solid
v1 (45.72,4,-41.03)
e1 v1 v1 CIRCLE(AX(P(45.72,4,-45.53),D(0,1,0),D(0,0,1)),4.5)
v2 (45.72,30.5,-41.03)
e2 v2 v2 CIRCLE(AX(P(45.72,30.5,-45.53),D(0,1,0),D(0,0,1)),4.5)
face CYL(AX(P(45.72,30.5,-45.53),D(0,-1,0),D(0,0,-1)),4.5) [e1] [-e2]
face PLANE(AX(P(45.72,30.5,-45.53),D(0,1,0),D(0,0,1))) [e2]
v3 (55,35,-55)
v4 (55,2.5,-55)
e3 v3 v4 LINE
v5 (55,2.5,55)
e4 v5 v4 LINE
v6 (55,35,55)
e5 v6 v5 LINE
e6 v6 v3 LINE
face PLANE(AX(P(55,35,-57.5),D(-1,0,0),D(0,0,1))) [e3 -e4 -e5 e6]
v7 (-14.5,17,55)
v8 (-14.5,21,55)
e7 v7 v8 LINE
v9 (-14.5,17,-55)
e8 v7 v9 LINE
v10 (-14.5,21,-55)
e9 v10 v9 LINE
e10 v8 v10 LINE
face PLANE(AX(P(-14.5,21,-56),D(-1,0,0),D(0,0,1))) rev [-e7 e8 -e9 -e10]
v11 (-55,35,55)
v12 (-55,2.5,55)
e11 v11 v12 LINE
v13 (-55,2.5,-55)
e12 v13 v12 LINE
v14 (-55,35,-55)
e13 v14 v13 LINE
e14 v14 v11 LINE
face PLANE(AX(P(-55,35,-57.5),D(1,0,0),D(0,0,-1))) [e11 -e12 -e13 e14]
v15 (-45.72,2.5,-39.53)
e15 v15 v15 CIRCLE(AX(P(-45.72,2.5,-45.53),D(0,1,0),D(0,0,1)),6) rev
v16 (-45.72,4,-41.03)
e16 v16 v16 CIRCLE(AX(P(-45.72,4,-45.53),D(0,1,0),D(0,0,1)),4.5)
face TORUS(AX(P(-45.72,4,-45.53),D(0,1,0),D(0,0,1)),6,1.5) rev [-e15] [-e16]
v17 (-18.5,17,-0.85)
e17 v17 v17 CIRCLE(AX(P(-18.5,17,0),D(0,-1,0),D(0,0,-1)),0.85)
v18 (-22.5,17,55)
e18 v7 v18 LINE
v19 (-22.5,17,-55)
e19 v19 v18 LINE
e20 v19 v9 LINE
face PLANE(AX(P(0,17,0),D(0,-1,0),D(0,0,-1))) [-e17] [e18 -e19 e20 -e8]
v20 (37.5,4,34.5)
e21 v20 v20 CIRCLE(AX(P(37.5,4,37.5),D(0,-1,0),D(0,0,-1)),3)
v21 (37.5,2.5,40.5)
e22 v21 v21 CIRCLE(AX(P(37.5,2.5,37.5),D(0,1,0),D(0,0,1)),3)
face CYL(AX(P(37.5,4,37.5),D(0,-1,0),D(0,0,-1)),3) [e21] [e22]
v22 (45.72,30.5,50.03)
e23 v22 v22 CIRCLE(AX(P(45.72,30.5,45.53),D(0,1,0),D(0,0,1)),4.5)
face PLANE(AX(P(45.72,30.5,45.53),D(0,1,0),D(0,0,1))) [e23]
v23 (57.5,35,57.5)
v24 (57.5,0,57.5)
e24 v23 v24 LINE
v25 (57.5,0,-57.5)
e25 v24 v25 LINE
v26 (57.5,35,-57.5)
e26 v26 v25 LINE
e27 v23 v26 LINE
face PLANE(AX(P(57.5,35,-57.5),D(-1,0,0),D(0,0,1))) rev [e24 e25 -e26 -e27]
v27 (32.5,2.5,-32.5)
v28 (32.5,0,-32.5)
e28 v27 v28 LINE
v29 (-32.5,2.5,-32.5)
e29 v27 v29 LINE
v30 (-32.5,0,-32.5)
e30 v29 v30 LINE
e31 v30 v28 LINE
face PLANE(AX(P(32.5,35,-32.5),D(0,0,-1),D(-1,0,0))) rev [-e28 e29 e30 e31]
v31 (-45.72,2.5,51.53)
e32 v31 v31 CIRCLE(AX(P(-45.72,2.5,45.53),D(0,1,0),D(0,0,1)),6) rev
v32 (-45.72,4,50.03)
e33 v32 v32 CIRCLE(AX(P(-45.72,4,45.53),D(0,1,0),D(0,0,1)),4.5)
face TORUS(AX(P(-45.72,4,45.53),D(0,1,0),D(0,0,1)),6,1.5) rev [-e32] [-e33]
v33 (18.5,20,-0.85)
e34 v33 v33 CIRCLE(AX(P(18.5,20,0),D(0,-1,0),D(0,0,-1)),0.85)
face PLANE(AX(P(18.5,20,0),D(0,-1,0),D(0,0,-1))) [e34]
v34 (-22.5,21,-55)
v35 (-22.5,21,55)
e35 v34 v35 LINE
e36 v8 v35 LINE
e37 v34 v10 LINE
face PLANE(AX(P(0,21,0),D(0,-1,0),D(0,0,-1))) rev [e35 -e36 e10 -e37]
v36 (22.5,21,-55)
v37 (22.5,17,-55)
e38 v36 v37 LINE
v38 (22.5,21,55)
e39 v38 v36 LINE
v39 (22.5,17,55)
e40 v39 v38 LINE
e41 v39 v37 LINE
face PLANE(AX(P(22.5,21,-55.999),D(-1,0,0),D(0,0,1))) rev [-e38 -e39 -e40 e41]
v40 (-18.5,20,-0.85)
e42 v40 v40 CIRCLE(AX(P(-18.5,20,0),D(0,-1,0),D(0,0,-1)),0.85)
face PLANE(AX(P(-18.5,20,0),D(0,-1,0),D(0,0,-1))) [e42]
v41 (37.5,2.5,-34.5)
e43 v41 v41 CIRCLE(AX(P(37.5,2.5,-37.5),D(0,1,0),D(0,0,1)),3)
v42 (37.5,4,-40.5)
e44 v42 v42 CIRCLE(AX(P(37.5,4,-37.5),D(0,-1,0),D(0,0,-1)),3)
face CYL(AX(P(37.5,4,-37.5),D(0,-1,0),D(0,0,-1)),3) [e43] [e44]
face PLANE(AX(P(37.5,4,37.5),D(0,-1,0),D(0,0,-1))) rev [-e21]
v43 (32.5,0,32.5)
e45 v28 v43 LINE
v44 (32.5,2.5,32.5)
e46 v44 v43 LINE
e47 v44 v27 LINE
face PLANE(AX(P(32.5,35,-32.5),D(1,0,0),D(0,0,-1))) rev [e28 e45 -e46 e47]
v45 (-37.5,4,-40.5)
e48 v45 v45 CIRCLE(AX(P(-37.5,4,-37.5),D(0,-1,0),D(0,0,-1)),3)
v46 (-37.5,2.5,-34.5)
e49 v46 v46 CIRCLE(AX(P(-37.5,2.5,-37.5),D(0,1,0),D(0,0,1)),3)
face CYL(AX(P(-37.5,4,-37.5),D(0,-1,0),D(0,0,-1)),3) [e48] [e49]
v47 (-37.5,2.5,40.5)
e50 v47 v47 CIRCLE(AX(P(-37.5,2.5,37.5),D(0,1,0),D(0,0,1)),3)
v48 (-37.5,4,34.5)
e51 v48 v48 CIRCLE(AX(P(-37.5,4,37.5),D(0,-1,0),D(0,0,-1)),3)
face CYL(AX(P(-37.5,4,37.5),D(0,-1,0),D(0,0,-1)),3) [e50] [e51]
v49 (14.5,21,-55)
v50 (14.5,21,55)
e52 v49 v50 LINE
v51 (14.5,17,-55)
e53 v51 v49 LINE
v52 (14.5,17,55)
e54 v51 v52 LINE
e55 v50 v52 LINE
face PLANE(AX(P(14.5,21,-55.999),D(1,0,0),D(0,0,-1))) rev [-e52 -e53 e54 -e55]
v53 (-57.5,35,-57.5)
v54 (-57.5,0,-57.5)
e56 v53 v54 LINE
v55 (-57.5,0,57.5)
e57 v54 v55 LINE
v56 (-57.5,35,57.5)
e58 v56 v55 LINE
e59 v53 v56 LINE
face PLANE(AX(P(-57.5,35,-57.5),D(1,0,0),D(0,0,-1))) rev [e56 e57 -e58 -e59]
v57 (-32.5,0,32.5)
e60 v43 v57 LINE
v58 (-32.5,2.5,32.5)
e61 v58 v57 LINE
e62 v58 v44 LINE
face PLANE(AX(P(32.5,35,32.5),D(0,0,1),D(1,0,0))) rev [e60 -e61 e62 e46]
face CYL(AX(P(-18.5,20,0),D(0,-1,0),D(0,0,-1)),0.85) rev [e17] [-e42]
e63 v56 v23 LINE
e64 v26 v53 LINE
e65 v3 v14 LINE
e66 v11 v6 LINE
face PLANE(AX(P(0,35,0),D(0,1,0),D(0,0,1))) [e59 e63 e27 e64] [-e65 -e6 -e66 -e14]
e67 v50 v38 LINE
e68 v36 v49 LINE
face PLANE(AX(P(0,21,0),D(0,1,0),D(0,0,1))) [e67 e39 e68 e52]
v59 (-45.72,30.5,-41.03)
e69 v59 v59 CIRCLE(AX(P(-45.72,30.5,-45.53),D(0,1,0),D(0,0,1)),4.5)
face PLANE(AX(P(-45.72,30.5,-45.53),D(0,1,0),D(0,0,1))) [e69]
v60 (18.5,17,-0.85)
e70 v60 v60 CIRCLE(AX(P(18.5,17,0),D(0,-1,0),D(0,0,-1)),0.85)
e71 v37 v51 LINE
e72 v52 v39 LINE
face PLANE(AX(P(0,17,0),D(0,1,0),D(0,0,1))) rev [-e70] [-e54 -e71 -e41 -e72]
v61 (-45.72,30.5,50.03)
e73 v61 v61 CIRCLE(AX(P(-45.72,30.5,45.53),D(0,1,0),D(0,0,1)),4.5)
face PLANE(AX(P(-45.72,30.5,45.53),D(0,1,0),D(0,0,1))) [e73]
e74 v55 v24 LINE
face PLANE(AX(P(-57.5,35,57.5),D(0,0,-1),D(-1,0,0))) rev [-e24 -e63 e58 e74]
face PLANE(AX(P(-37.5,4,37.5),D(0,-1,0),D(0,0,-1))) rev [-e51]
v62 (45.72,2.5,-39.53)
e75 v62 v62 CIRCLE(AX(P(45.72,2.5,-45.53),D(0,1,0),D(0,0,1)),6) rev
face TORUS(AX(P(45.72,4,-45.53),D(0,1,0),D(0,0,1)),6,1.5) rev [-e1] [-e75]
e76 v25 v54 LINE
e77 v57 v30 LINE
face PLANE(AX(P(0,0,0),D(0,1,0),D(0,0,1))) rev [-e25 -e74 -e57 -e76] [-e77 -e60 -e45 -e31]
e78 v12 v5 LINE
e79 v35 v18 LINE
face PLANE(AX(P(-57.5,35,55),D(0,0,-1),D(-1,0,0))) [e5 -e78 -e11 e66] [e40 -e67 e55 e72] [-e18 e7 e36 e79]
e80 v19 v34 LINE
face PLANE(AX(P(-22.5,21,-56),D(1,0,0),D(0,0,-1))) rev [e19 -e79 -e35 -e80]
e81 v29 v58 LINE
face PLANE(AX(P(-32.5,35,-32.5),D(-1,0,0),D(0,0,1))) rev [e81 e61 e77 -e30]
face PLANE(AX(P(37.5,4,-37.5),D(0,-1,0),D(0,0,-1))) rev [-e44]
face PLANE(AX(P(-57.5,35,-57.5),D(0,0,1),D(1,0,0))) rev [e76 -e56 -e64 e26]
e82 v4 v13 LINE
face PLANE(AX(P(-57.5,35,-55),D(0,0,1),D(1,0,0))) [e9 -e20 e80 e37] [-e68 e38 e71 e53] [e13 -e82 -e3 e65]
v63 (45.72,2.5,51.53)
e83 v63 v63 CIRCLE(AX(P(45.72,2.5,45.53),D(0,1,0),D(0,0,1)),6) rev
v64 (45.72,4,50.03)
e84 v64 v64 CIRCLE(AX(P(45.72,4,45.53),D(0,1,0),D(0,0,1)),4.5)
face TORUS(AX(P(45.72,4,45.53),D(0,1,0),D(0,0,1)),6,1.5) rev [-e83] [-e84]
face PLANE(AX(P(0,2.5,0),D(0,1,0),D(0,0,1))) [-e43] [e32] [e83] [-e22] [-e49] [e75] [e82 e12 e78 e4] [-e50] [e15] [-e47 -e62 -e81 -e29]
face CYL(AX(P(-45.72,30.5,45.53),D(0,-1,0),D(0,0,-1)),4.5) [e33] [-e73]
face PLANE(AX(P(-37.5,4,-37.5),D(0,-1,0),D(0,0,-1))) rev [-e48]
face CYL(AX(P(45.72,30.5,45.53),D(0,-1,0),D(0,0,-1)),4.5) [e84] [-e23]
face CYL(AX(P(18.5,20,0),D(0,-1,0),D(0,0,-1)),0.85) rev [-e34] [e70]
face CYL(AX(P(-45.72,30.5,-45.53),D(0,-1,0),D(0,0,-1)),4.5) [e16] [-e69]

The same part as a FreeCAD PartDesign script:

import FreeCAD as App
import Part
import Sketcher
from FreeCAD import Vector


def edges_at(feature, points):
    """Names of the edges that pass closest to the given points."""
    edges = feature.Shape.Edges
    near = lambda p: min(range(len(edges)), key=lambda i: edges[i].distToShape(Part.Vertex(*p))[0])
    return sorted({f"Edge{near(p) + 1}" for p in points})


def faces_at(feature, points):
    """Names of the faces that lie closest to the given points."""
    faces = feature.Shape.Faces
    near = lambda p: min(range(len(faces)), key=lambda i: faces[i].distToShape(Part.Vertex(*p))[0])
    return sorted({f"Face{near(p) + 1}" for p in points})


def add_polygon(sketch, points):
    """Adds a closed chain of lines whose ends are joined by coincident constraints."""
    first, n = sketch.GeometryCount, len(points)
    for a, b in zip(points, points[1:] + points[:1]):
        sketch.addGeometry(Part.LineSegment(App.Vector(*a, 0), App.Vector(*b, 0)), False)
    for i in range(n):
        sketch.addConstraint(Sketcher.Constraint("Coincident", first + i, 2, first + (i + 1) % n, 1))

doc = App.newDocument("Part")
body = doc.addObject("PartDesign::Body", "Body")

# Sketch on XZ plane
sketch1 = body.newObject("Sketcher::SketchObject", "Sketch")
sketch1.AttachmentSupport = (doc.getObject("XZ_Plane"), [""])
sketch1.MapMode = "FlatFace"
add_polygon(sketch1, [(-57.5, -57.5), (-57.5, 57.5), (57.5, 57.5), (57.5, -57.5)])  # lines 0-3
sketch1.addConstraint([
    Sketcher.Constraint("Vertical", 0),
    Sketcher.Constraint("Horizontal", 1),
    Sketcher.Constraint("Vertical", 2),
    Sketcher.Constraint("Horizontal", 3),
    Sketcher.Constraint("Symmetric", 0, 2, 2, 2, -1, 1),
    Sketcher.Constraint("Equal", 3, 0),
    Sketcher.Constraint("DistanceX", 1, 1, 1, 2, 115.0),
])
pad1 = body.newObject("PartDesign::Pad", "Pad")
pad1.Profile = sketch1
pad1.Length = 35
pad1.Reversed = True
doc.recompute()

thickness = body.newObject("PartDesign::Thickness", "Thickness")
thickness.Base = (pad1, faces_at(pad1, [(0, 35, 0)]))
thickness.Value = 2.5
thickness.Reversed = True
thickness.Join = "Intersection"

# Sketch on XZ plane
sketch2 = body.newObject("Sketcher::SketchObject", "Sketch001")
sketch2.AttachmentSupport = (doc.getObject("XZ_Plane"), [""])
sketch2.MapMode = "FlatFace"
sketch2.AttachmentOffset = App.Placement(Vector(0, 0, -2.5), App.Rotation())
sketch2.addGeometry([
    Part.Circle(Vector(-45.72, 45.53, 0), Vector(0, 0, 1), 4.5),
    Part.Circle(Vector(-45.72, -45.53, 0), Vector(0, 0, 1), 4.5),
    Part.Circle(Vector(45.72, -45.53, 0), Vector(0, 0, 1), 4.5),
    Part.Circle(Vector(45.72, 45.53, 0), Vector(0, 0, 1), 4.5),
], False)
sketch2.addConstraint([
    Sketcher.Constraint("Equal", 0, 1),
    Sketcher.Constraint("Equal", 1, 2),
    Sketcher.Constraint("Equal", 2, 3),
    Sketcher.Constraint("Symmetric", 0, 3, 2, 3, -1, 1),
    Sketcher.Constraint("Symmetric", 1, 3, 3, 3, -1, 1),
    Sketcher.Constraint("Symmetric", 1, 3, 2, 3, -2),
    Sketcher.Constraint("Diameter", 0, 9.0),
    Sketcher.Constraint("DistanceX", 0, 3, -1, 1, 45.72),
    Sketcher.Constraint("DistanceY", -1, 1, 0, 3, 45.53),
])
pad2 = body.newObject("PartDesign::Pad", "Pad001")
pad2.Profile = sketch2
pad2.Length = 28
pad2.Reversed = True
doc.recompute()

fillet = body.newObject("PartDesign::Fillet", "Fillet")
fillet.Base = (pad2, edges_at(pad2, [(-45.72, 2.5, 41.03)]))
fillet.Radius = 1.5
doc.recompute()

fillet2 = body.newObject("PartDesign::Fillet", "Fillet001")
fillet2.Base = (fillet, edges_at(fillet, [(-45.72, 2.5, -50.03)]))
fillet2.Radius = 1.5
doc.recompute()

fillet3 = body.newObject("PartDesign::Fillet", "Fillet002")
fillet3.Base = (fillet2, edges_at(fillet2, [(45.72, 2.5, -50.03)]))
fillet3.Radius = 1.5
doc.recompute()

fillet4 = body.newObject("PartDesign::Fillet", "Fillet003")
fillet4.Base = (fillet3, edges_at(fillet3, [(45.72, 2.5, 41.03)]))
fillet4.Radius = 1.5

# Sketch on XZ plane
sketch3 = body.newObject("Sketcher::SketchObject", "Sketch002")
sketch3.AttachmentSupport = (doc.getObject("XZ_Plane"), [""])
sketch3.MapMode = "FlatFace"
add_polygon(sketch3, [(-32.5, 32.5), (-32.5, -32.5), (32.5, -32.5), (32.5, 32.5)])  # lines 0-3
sketch3.addConstraint([
    Sketcher.Constraint("Vertical", 0),
    Sketcher.Constraint("Horizontal", 1),
    Sketcher.Constraint("Vertical", 2),
    Sketcher.Constraint("Horizontal", 3),
    Sketcher.Constraint("Symmetric", 0, 2, 2, 2, -1, 1),
    Sketcher.Constraint("Equal", 3, 0),
    Sketcher.Constraint("DistanceX", 1, 1, 1, 2, 65.0),
])
pocket1 = body.newObject("PartDesign::Pocket", "Pocket")
pocket1.Profile = sketch3
pocket1.Type = "ThroughAll"

# Sketch on XZ plane
sketch4 = body.newObject("Sketcher::SketchObject", "Sketch003")
sketch4.AttachmentSupport = (doc.getObject("XZ_Plane"), [""])
sketch4.MapMode = "FlatFace"
sketch4.AttachmentOffset = App.Placement(Vector(0, 0, -17), App.Rotation())
add_polygon(sketch4, [(-22.5, -56), (-22.5, 56), (-14.5, 56), (-14.5, -56)])  # lines 0-3
add_polygon(sketch4, [(14.5, -55.999), (14.5, 56.001), (22.5, 56.001), (22.5, -55.999)])  # lines 4-7
sketch4.addConstraint([
    Sketcher.Constraint("Vertical", 0),
    Sketcher.Constraint("Horizontal", 1),
    Sketcher.Constraint("Vertical", 2),
    Sketcher.Constraint("Horizontal", 3),
    Sketcher.Constraint("Vertical", 4),
    Sketcher.Constraint("Horizontal", 5),
    Sketcher.Constraint("Vertical", 6),
    Sketcher.Constraint("Horizontal", 7),
    Sketcher.Constraint("Equal", 3, 5),
    Sketcher.Constraint("Equal", 2, 4),
    Sketcher.Constraint("DistanceX", 1, 1, 1, 2, 8.0),
    Sketcher.Constraint("DistanceY", 0, 1, 0, 2, 112.0),
    Sketcher.Constraint("DistanceY", -1, 1, 0, 2, 56.0),
    Sketcher.Constraint("DistanceX", 1, 2, 4, 2, 29.0),
    Sketcher.Constraint("DistanceX", 0, 2, -1, 1, 22.5),
    Sketcher.Constraint("DistanceY", -1, 1, 4, 2, 56.001),
])
pad3 = body.newObject("PartDesign::Pad", "Pad002")
pad3.Profile = sketch4
pad3.Length = 4
pad3.Reversed = True

# Sketch on XZ plane
sketch5 = body.newObject("Sketcher::SketchObject", "Sketch004")
sketch5.AttachmentSupport = (doc.getObject("XZ_Plane"), [""])
sketch5.MapMode = "FlatFace"
sketch5.AttachmentOffset = App.Placement(Vector(0, 0, -17), App.Rotation())
sketch5.addGeometry([
    Part.Circle(Vector(-18.5, 0, 0), Vector(0, 0, 1), 0.85),
    Part.Circle(Vector(18.5, 0, 0), Vector(0, 0, 1), 0.85),
], False)
sketch5.addConstraint([
    Sketcher.Constraint("Equal", 0, 1),
    Sketcher.Constraint("Symmetric", 0, 3, 1, 3, -1, 1),
    Sketcher.Constraint("PointOnObject", 0, 3, -1),
    Sketcher.Constraint("Diameter", 0, 1.7),
    Sketcher.Constraint("DistanceX", 0, 3, 1, 3, 37.0),
])
pocket2 = body.newObject("PartDesign::Pocket", "Pocket001")
pocket2.Profile = sketch5
pocket2.Length = 3

# Sketch on XZ plane
sketch6 = body.newObject("Sketcher::SketchObject", "Sketch005")
sketch6.AttachmentSupport = (doc.getObject("XZ_Plane"), [""])
sketch6.MapMode = "FlatFace"
sketch6.addGeometry([
    Part.Circle(Vector(37.5, -37.5, 0), Vector(0, 0, 1), 3),
    Part.Circle(Vector(-37.5, -37.5, 0), Vector(0, 0, 1), 3),
    Part.Circle(Vector(-37.5, 37.5, 0), Vector(0, 0, 1), 3),
    Part.Circle(Vector(37.5, 37.5, 0), Vector(0, 0, 1), 3),
], False)
sketch6.addConstraint([
    Sketcher.Constraint("Equal", 0, 1),
    Sketcher.Constraint("Equal", 1, 2),
    Sketcher.Constraint("Equal", 2, 3),
    Sketcher.Constraint("Symmetric", 0, 3, 2, 3, -1, 1),
    Sketcher.Constraint("Symmetric", 1, 3, 3, 3, -1, 1),
    Sketcher.Constraint("Symmetric", 0, 3, 1, 3, -2),
    Sketcher.Constraint("Diameter", 0, 6.0),
    Sketcher.Constraint("DistanceX", 1, 3, 0, 3, 75.0),
    Sketcher.Constraint("DistanceY", 1, 3, 2, 3, 75.0),
])
pad4 = body.newObject("PartDesign::Pad", "Pad003")
pad4.Profile = sketch6
pad4.Length = 4
pad4.Reversed = True

doc.recompute()
